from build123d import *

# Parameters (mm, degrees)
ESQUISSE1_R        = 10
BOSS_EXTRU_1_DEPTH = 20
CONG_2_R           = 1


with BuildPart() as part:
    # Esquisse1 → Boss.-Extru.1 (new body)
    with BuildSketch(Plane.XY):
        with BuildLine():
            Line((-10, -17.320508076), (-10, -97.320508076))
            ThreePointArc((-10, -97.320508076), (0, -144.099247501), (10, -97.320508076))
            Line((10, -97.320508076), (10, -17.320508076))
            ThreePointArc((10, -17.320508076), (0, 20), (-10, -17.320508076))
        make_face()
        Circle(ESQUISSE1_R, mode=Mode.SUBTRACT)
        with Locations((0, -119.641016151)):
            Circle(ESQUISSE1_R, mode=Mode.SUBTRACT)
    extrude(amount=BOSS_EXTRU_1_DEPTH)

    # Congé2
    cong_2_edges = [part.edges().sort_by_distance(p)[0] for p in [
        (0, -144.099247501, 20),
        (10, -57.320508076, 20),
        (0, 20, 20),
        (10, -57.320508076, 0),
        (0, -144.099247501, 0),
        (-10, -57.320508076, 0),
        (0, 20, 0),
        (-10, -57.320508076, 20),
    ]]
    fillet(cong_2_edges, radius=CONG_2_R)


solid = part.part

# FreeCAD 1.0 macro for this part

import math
import FreeCAD as App
import Part
import Sketcher
from FreeCAD import Vector


def edges_at(feature, points):
    """Names of the edges that pass closest to the given points."""
    edges = feature.Shape.Edges
    near = lambda p: min(range(len(edges)), key=lambda i: edges[i].distToShape(Part.Vertex(*p))[0])
    return sorted({f"Edge{near(p) + 1}" for p in points})

doc = App.newDocument("Part")
body = doc.addObject("PartDesign::Body", "Body")

# Sketch on XY plane
sketch1 = doc.addObject("Sketcher::SketchObject", "Sketch")
body.addObject(sketch1)
sketch1.AttachmentSupport = (doc.XY_Plane, [""])
sketch1.MapMode = "FlatFace"
sketch1.addGeometry(Part.LineSegment(Vector(-10, -17, 0), Vector(-10, -97, 0)), False)
sketch1.addGeometry(Part.ArcOfCircle(Part.Circle(Vector(0, -120, 0), Vector(0, 0, 1), 24), math.radians(114), math.radians(426)), False)
sketch1.addGeometry(Part.LineSegment(Vector(10, -97, 0), Vector(10, -17, 0)), False)
sketch1.addGeometry(Part.ArcOfCircle(Part.Circle(Vector(0, 0, 0), Vector(0, 0, 1), 20), math.radians(-60), math.radians(240)), False)
sketch1.addGeometry(Part.Circle(Vector(0, -120, 0), Vector(0, 0, 1), 10), False)
sketch1.addGeometry(Part.Circle(Vector(0, 0, 0), Vector(0, 0, 1), 10), False)
sketch1.addConstraint(Sketcher.Constraint("Coincident", 0, 2, 1, 1))
sketch1.addConstraint(Sketcher.Constraint("Coincident", 1, 2, 2, 1))
sketch1.addConstraint(Sketcher.Constraint("Coincident", 2, 2, 3, 1))
sketch1.addConstraint(Sketcher.Constraint("Coincident", 3, 2, 0, 1))
sketch1.addConstraint(Sketcher.Constraint("Vertical", 0))
sketch1.addConstraint(Sketcher.Constraint("Vertical", 2))
sketch1.addConstraint(Sketcher.Constraint("Coincident", 3, 3, -1, 1))
sketch1.addConstraint(Sketcher.Constraint("Coincident", 5, 3, -1, 1))
sketch1.addConstraint(Sketcher.Constraint("Coincident", 4, 3, 1, 3))
sketch1.addConstraint(Sketcher.Constraint("Equal", 4, 5))
sketch1.addConstraint(Sketcher.Constraint("Symmetric", 0, 2, 1, 2, -2))
sketch1.addConstraint(Sketcher.Constraint("Diameter", 4, 20.0))
sketch1.addConstraint(Sketcher.Constraint("Radius", 3, 20.0))
sketch1.addConstraint(Sketcher.Constraint("DistanceY", 0, 2, 0, 1, 80.0))
sketch1.addConstraint(Sketcher.Constraint("DistanceX", 0, 2, -1, 1, 10.0))
sketch1.addConstraint(Sketcher.Constraint("Radius", 1, 24.458231))
pad1 = doc.addObject("PartDesign::Pad", "Pad")
body.addObject(pad1)
pad1.Profile = sketch1
pad1.Length = 20
doc.recompute()

fillet = doc.addObject("PartDesign::Fillet", "Fillet")
body.addObject(fillet)
fillet.Base = (pad1, edges_at(pad1, [
    (0, -144.099, 20),
    (10, -57.321, 20),
    (0, 20, 20),
    (10, -57.321, 0),
    (0, -144.099, 0),
    (-10, -57.321, 0),
    (0, 20, 0),
    (-10, -57.321, 20),
]))
fillet.Radius = 1

doc.recompute()
